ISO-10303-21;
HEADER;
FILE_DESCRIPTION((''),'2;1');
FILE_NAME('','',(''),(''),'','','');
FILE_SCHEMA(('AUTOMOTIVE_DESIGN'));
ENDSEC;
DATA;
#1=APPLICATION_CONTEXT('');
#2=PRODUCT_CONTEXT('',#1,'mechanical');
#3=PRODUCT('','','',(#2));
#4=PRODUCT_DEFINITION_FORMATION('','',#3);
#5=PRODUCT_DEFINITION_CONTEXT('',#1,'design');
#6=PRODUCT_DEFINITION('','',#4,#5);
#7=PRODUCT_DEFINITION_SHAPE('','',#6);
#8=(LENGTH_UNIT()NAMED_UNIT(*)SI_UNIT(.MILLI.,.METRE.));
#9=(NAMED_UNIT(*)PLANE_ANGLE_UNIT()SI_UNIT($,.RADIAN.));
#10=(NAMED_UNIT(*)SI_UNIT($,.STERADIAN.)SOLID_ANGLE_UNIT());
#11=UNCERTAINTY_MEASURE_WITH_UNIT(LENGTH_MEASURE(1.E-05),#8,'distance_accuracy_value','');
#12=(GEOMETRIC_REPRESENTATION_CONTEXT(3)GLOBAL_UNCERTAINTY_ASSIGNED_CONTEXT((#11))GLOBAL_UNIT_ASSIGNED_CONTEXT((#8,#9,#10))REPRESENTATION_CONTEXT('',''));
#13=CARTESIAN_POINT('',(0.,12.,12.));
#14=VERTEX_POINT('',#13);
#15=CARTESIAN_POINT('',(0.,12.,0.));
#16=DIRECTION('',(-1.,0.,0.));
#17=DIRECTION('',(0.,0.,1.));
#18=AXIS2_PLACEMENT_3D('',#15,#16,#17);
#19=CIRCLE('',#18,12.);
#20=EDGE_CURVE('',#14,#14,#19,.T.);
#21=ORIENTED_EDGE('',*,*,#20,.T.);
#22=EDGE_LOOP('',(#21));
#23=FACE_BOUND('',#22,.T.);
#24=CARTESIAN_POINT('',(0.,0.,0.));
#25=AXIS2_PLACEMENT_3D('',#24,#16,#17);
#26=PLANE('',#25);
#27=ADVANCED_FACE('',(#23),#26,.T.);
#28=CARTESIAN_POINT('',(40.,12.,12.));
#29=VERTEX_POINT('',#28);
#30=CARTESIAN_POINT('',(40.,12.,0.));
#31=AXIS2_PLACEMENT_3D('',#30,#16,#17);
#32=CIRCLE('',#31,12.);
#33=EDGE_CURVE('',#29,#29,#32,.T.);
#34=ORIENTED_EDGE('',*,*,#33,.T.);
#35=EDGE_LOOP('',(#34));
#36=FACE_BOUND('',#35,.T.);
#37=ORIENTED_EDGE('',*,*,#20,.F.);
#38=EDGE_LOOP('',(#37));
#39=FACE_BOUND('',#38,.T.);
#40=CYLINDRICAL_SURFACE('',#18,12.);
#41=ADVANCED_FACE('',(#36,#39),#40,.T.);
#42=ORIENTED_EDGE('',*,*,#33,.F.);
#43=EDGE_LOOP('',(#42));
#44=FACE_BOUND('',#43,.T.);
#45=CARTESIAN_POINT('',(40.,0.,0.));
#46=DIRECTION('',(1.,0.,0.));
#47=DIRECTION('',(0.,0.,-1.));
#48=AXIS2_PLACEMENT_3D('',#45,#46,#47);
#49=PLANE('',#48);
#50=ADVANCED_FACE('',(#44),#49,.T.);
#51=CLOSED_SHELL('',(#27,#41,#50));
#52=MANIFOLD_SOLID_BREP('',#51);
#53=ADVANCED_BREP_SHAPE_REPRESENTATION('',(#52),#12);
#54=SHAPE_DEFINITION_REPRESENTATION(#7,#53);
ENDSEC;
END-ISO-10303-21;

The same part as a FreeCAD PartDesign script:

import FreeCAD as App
import Part
import Sketcher
from FreeCAD import Vector

doc = App.newDocument("Part")
body = doc.addObject("PartDesign::Body", "Body")

sketch1 = body.newObject("Sketcher::SketchObject", "Sketch")
sketch1.AttachmentSupport = (doc.getObject("XY_Plane"), [""])
sketch1.MapMode = "FlatFace"
sketch1.addGeometry(Part.LineSegment(Vector(0, 12, 0), Vector(0, 0, 0)), False)
sketch1.addGeometry(Part.LineSegment(Vector(0, 0, 0), Vector(40, 0, 0)), False)
sketch1.addGeometry(Part.LineSegment(Vector(40, 0, 0), Vector(40, 12, 0)), False)
sketch1.addGeometry(Part.LineSegment(Vector(40, 12, 0), Vector(0, 12, 0)), False)
sketch1.addGeometry(Part.LineSegment(Vector(0, 12, 0), Vector(40, 12, 0)), True)
sketch1.addConstraint(Sketcher.Constraint("Coincident", 0, 2, 1, 1))
sketch1.addConstraint(Sketcher.Constraint("Coincident", 1, 2, 2, 1))
sketch1.addConstraint(Sketcher.Constraint("Coincident", 2, 2, 3, 1))
sketch1.addConstraint(Sketcher.Constraint("Coincident", 3, 2, 0, 1))
sketch1.addConstraint(Sketcher.Constraint("Vertical", 0))
sketch1.addConstraint(Sketcher.Constraint("Horizontal", 1))
sketch1.addConstraint(Sketcher.Constraint("Vertical", 2))
sketch1.addConstraint(Sketcher.Constraint("Horizontal", 3))
sketch1.addConstraint(Sketcher.Constraint("Horizontal", 4))
sketch1.addConstraint(Sketcher.Constraint("Coincident", 0, 2, -1, 1))
sketch1.addConstraint(Sketcher.Constraint("Coincident", 4, 1, 3, 2))
sketch1.addConstraint(Sketcher.Constraint("Vertical", 1, 2, 4, 2))
sketch1.addConstraint(Sketcher.Constraint("DistanceX", 1, 1, 1, 2, 40.0))
sketch1.addConstraint(Sketcher.Constraint("DistanceY", 0, 2, 0, 1, 12.0))
revolution = body.newObject("PartDesign::Revolution", "Revolution")
revolution.Profile = sketch1
revolution.ReferenceAxis = (sketch1, ["Axis0"])
revolution.Angle = 360

doc.recompute()
